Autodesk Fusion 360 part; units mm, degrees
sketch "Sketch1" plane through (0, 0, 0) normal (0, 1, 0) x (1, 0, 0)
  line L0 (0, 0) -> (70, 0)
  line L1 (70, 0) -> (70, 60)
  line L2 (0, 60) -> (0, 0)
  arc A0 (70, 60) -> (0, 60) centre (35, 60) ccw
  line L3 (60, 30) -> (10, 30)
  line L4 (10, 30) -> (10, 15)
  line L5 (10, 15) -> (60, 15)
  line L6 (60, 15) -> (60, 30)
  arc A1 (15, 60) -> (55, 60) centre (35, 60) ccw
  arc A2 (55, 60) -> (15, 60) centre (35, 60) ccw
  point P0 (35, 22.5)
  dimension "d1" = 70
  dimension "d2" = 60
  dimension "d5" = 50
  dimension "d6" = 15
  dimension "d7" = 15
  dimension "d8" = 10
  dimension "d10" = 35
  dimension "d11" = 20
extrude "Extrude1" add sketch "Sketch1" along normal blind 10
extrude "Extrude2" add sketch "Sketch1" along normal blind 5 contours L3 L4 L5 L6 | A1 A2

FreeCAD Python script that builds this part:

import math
import FreeCAD as App
import Part
import Sketcher


def add_polygon(sketch, points):
    """Adds a closed chain of lines whose ends are joined by coincident constraints."""
    first, n = sketch.GeometryCount, len(points)
    for a, b in zip(points, points[1:] + points[:1]):
        sketch.addGeometry(Part.LineSegment(App.Vector(*a, 0), App.Vector(*b, 0)), False)
    for i in range(n):
        sketch.addConstraint(Sketcher.Constraint("Coincident", first + i, 2, first + (i + 1) % n, 1))

doc = App.newDocument("Part")
params = doc.addObject("Spreadsheet::Sheet", "Params")
for row, (alias, value) in enumerate([
    ("sketch1_diameter", "40 mm"),
    ("sketch1_radius", "35 mm"),
    ("sketch1_width", "50 mm"),
    ("sketch1_height", "60 mm"),
    ("sketch1_height2", "15 mm"),
    ("pad1_length", "10 mm"),
    ("sketch2_diameter", "40 mm"),
    ("sketch2_width", "50 mm"),
    ("sketch2_height", "15 mm"),
    ("pad2_length", "5 mm"),
], start=1):
    params.set(f"A{row}", alias)
    params.set(f"B{row}", "=" + value)
    params.setAlias(f"B{row}", alias)

body = doc.addObject("PartDesign::Body", "Body")

# Sketch on XZ plane
sketch1 = body.newObject("Sketcher::SketchObject", "Sketch")
sketch1.AttachmentSupport = (doc.getObject("XZ_Plane"), [""])
sketch1.MapMode = "FlatFace"
sketch1.addGeometry(Part.LineSegment(App.Vector(0, -60, 0), App.Vector(0, 0, 0)), False)  # 0
sketch1.addGeometry(Part.LineSegment(App.Vector(0, 0, 0), App.Vector(70, 0, 0)), False)  # 1
sketch1.addGeometry(Part.LineSegment(App.Vector(70, 0, 0), App.Vector(70, -60, 0)), False)  # 2
sketch1.addGeometry(Part.ArcOfCircle(Part.Circle(App.Vector(35, -60, 0), App.Vector(0, 0, 1), 35), math.radians(180), math.radians(360)), False)  # 3
add_polygon(sketch1, [(10, -30), (60, -30), (60, -15), (10, -15)])  # lines 4-7
sketch1.addGeometry(Part.Circle(App.Vector(35, -60, 0), App.Vector(0, 0, 1), 20), False)  # 8
sketch1.addConstraint(Sketcher.Constraint("Coincident", 0, 2, 1, 1))
sketch1.addConstraint(Sketcher.Constraint("Coincident", 1, 2, 2, 1))
sketch1.addConstraint(Sketcher.Constraint("Tangent", 2, 2, 3, 2))
sketch1.addConstraint(Sketcher.Constraint("Tangent", 3, 1, 0, 1))
sketch1.addConstraint(Sketcher.Constraint("Vertical", 0))
sketch1.addConstraint(Sketcher.Constraint("Horizontal", 1))
sketch1.addConstraint(Sketcher.Constraint("Vertical", 2))
sketch1.addConstraint(Sketcher.Constraint("Horizontal", 4))
sketch1.addConstraint(Sketcher.Constraint("Vertical", 5))
sketch1.addConstraint(Sketcher.Constraint("Horizontal", 6))
sketch1.addConstraint(Sketcher.Constraint("Vertical", 7))
sketch1.addConstraint(Sketcher.Constraint("Coincident", 0, 2, -1, 1))
sketch1.addConstraint(Sketcher.Constraint("Coincident", 8, 3, 3, 3))
sketch1.addConstraint(Sketcher.Constraint("Diameter", 8, 40.0))
sketch1.addConstraint(Sketcher.Constraint("Radius", 3, 35.0))
sketch1.addConstraint(Sketcher.Constraint("DistanceX", 4, 1, 4, 2, 50.0))
sketch1.addConstraint(Sketcher.Constraint("DistanceY", 0, 1, 0, 2, 60.0))
sketch1.addConstraint(Sketcher.Constraint("DistanceY", 5, 1, 5, 2, 15.0))
sketch1.addConstraint(Sketcher.Constraint("DistanceX", -1, 1, 4, 2, 60.0))
sketch1.addConstraint(Sketcher.Constraint("DistanceY", 5, 2, -1, 1, 15.0))
sketch1.setExpression("Constraints[17]", "Params.sketch1_diameter")
sketch1.setExpression("Constraints[18]", "Params.sketch1_radius")
sketch1.setExpression("Constraints[19]", "Params.sketch1_width")
sketch1.setExpression("Constraints[20]", "Params.sketch1_height")
sketch1.setExpression("Constraints[21]", "Params.sketch1_height2")
pad1 = body.newObject("PartDesign::Pad", "Pad")
pad1.Profile = sketch1
pad1.setExpression("Length", "Params.pad1_length")
pad1.Reversed = True

# Sketch on XZ plane
sketch2 = body.newObject("Sketcher::SketchObject", "Sketch001")
sketch2.AttachmentSupport = (doc.getObject("XZ_Plane"), [""])
sketch2.MapMode = "FlatFace"
add_polygon(sketch2, [(60, -15), (60, -30), (10, -30), (10, -15)])  # lines 0-3
sketch2.addGeometry(Part.Circle(App.Vector(35, -60, 0), App.Vector(0, 0, 1), 20), False)  # 4
sketch2.addConstraint(Sketcher.Constraint("Vertical", 0))
sketch2.addConstraint(Sketcher.Constraint("Horizontal", 1))
sketch2.addConstraint(Sketcher.Constraint("Vertical", 2))
sketch2.addConstraint(Sketcher.Constraint("Horizontal", 3))
sketch2.addConstraint(Sketcher.Constraint("Diameter", 4, 40.0))
sketch2.addConstraint(Sketcher.Constraint("DistanceX", 1, 2, 1, 1, 50.0))
sketch2.addConstraint(Sketcher.Constraint("DistanceY", 0, 2, 0, 1, 15.0))
sketch2.addConstraint(Sketcher.Constraint("DistanceX", -1, 1, 4, 3, 35.0))
sketch2.addConstraint(Sketcher.Constraint("DistanceY", 4, 3, -1, 1, 60.0))
sketch2.addConstraint(Sketcher.Constraint("DistanceX", -1, 1, 0, 2, 60.0))
sketch2.addConstraint(Sketcher.Constraint("DistanceY", 2, 2, -1, 1, 15.0))
sketch2.setExpression("Constraints[8]", "Params.sketch2_diameter")
sketch2.setExpression("Constraints[9]", "Params.sketch2_width")
sketch2.setExpression("Constraints[10]", "Params.sketch2_height")
pad2 = body.newObject("PartDesign::Pad", "Pad001")
pad2.Profile = sketch2
pad2.setExpression("Length", "Params.pad2_length")
pad2.Reversed = True

doc.recompute()
